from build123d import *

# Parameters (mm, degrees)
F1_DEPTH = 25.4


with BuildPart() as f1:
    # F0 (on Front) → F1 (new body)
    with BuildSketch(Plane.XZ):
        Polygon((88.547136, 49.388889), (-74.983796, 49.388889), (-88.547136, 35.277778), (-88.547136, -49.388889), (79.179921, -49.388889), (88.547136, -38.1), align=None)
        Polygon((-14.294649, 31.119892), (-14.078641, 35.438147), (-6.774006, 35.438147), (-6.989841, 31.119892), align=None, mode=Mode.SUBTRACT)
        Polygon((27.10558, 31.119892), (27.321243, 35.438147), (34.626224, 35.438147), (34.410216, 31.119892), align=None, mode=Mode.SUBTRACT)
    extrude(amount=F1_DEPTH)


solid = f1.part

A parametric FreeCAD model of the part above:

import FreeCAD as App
import Part
import Sketcher
Q = App.Units.Quantity

doc = App.newDocument("Part")
body = doc.addObject("PartDesign::Body", "Body")

# Sketch on XZ plane
sketch1 = body.newObject("Sketcher::SketchObject", "Sketch")
sketch1.AttachmentSupport = (doc.getObject("XZ_Plane"), [""])
sketch1.MapMode = "FlatFace"
sketch1.addGeometry([
    Part.LineSegment(App.Vector(88.5, 49.4, 0), App.Vector(-75, 49.4, 0)),  # 0
    Part.LineSegment(App.Vector(-75, 49.4, 0), App.Vector(-88.5, 35.3, 0)),  # 1
    Part.LineSegment(App.Vector(-88.5, 35.3, 0), App.Vector(-88.5, -49.4, 0)),  # 2
    Part.LineSegment(App.Vector(-88.5, -49.4, 0), App.Vector(79.2, -49.4, 0)),  # 3
    Part.LineSegment(App.Vector(79.2, -49.4, 0), App.Vector(88.5, -38.1, 0)),  # 4
    Part.LineSegment(App.Vector(88.5, -38.1, 0), App.Vector(88.5, 49.4, 0)),  # 5
    Part.LineSegment(App.Vector(-7, 31.1, 0), App.Vector(-14.3, 31.1, 0)),  # 6
    Part.LineSegment(App.Vector(-14.3, 31.1, 0), App.Vector(-14.1, 35.4, 0)),  # 7
    Part.LineSegment(App.Vector(-14.1, 35.4, 0), App.Vector(-6.8, 35.4, 0)),  # 8
    Part.LineSegment(App.Vector(-6.8, 35.4, 0), App.Vector(-7, 31.1, 0)),  # 9
    Part.LineSegment(App.Vector(34.4, 31.1, 0), App.Vector(27.1, 31.1, 0)),  # 10
    Part.LineSegment(App.Vector(27.1, 31.1, 0), App.Vector(27.3, 35.4, 0)),  # 11
    Part.LineSegment(App.Vector(27.3, 35.4, 0), App.Vector(34.6, 35.4, 0)),  # 12
    Part.LineSegment(App.Vector(34.6, 35.4, 0), App.Vector(34.4, 31.1, 0)),  # 13
], False)
sketch1.addConstraint([
    Sketcher.Constraint("Coincident", 0, 2, 1, 1),
    Sketcher.Constraint("Coincident", 1, 2, 2, 1),
    Sketcher.Constraint("Coincident", 2, 2, 3, 1),
    Sketcher.Constraint("Coincident", 3, 2, 4, 1),
    Sketcher.Constraint("Coincident", 4, 2, 5, 1),
    Sketcher.Constraint("Coincident", 5, 2, 0, 1),
    Sketcher.Constraint("Coincident", 6, 2, 7, 1),
    Sketcher.Constraint("Coincident", 7, 2, 8, 1),
    Sketcher.Constraint("Coincident", 8, 2, 9, 1),
    Sketcher.Constraint("Coincident", 9, 2, 6, 1),
    Sketcher.Constraint("Coincident", 10, 2, 11, 1),
    Sketcher.Constraint("Coincident", 11, 2, 12, 1),
    Sketcher.Constraint("Coincident", 12, 2, 13, 1),
    Sketcher.Constraint("Coincident", 13, 2, 10, 1),
    Sketcher.Constraint("Horizontal", 0),
    Sketcher.Constraint("Vertical", 2),
    Sketcher.Constraint("Horizontal", 3),
    Sketcher.Constraint("Vertical", 5),
    Sketcher.Constraint("Horizontal", 6),
    Sketcher.Constraint("Horizontal", 8),
    Sketcher.Constraint("Horizontal", 10),
    Sketcher.Constraint("Horizontal", 12),
    Sketcher.Constraint("Symmetric", 2, 2, 5, 2, -1, 1),
    Sketcher.Constraint("Parallel", 7, 13),
    Sketcher.Constraint("Horizontal", 9, 2, 10, 2),
    Sketcher.Constraint("Horizontal", 8, 2, 11, 2),
    Sketcher.Constraint("Equal", 8, 10),
    Sketcher.Constraint("DistanceY", 4, 2, -1, 1, Q("1.5 in")),
    Sketcher.Constraint("DistanceX", 0, 2, 0, 1, Q("163.530932 mm")),
    Sketcher.Constraint("DistanceX", 12, 1, 12, 2, Q("7.304981 mm")),
    Sketcher.Constraint("DistanceY", 5, 1, 5, 2, Q("87.488889 mm")),
    Sketcher.Constraint("DistanceX", 7, 2, 9, 2, Q("7.0888 mm")),
    Sketcher.Constraint("DistanceX", 3, 1, 3, 2, Q("167.727057 mm")),
    Sketcher.Constraint("DistanceX", 6, 2, 6, 1, Q("7.304808 mm")),
    Sketcher.Constraint("DistanceX", 8, 1, 8, 2, Q("7.304635 mm")),
    Sketcher.Constraint("DistanceY", 2, 2, 2, 1, Q("84.666667 mm")),
    Sketcher.Constraint("DistanceX", -1, 1, 3, 2, Q("79.179921 mm")),
    Sketcher.Constraint("DistanceX", 6, 2, -1, 1, Q("14.294649 mm")),
    Sketcher.Constraint("DistanceY", -1, 1, 6, 2, Q("31.119892 mm")),
    Sketcher.Constraint("DistanceX", -1, 1, 10, 2, Q("27.10558 mm")),
    Sketcher.Constraint("DistanceY", 7, 2, 0, 2, Q("13.950742 mm")),
])
pad1 = body.newObject("PartDesign::Pad", "Pad")
pad1.Profile = sketch1
pad1.Length = Q("1 in")

doc.recompute()
